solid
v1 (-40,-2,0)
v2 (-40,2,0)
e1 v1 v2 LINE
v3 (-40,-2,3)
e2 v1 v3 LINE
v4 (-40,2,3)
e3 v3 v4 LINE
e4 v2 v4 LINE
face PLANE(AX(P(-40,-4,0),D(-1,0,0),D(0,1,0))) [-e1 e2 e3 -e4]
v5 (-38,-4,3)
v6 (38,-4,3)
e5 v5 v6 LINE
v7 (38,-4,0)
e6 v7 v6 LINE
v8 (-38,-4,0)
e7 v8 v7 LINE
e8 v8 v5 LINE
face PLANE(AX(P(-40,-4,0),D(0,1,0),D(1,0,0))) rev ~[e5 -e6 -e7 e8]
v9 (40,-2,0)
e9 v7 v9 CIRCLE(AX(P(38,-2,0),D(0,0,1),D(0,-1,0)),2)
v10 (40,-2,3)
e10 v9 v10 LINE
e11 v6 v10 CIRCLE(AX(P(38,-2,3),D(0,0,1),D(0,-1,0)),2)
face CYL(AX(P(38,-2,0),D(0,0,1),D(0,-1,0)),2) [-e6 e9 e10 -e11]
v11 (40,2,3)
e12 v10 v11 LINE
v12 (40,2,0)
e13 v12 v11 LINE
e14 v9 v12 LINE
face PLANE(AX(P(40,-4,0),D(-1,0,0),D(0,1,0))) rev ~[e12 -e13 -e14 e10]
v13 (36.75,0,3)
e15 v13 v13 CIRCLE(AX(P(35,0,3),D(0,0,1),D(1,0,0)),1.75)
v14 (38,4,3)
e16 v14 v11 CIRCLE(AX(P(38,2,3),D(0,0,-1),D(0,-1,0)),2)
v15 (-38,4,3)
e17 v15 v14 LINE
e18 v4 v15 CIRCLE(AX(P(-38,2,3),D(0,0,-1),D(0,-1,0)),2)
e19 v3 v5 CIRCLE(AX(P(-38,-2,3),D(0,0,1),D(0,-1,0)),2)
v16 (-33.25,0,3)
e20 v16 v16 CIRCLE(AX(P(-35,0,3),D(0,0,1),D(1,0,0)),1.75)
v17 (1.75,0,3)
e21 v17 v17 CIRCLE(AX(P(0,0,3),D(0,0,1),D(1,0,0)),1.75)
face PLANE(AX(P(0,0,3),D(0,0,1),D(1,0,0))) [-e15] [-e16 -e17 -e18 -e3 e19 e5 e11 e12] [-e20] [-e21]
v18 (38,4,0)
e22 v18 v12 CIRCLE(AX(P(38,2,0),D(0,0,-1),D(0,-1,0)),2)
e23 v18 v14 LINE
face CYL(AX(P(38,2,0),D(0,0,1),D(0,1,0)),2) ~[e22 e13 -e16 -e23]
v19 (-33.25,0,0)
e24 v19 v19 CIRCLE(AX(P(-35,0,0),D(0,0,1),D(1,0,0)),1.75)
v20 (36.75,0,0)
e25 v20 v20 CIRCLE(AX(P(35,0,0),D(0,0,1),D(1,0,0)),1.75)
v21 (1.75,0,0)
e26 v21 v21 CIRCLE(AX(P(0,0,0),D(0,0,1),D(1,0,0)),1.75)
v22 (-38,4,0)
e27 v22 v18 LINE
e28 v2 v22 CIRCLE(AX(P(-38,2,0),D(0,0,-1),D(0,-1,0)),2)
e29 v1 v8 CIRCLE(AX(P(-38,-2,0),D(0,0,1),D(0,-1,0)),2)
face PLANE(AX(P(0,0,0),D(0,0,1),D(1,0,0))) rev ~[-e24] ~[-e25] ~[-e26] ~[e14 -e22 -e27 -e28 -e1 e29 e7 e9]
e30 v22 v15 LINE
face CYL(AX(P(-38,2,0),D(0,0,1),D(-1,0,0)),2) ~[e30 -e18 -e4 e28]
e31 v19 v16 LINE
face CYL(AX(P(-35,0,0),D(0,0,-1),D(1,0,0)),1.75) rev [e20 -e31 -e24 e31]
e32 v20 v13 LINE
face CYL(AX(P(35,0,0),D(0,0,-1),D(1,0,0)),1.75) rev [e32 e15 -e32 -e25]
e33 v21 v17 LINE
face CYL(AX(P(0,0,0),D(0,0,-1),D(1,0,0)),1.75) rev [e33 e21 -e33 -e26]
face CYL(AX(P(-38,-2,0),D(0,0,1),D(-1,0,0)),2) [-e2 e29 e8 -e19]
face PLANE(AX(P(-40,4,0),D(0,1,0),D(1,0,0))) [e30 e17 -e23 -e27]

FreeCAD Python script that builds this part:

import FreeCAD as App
import Part
import Sketcher
from FreeCAD import Vector


def edges_at(feature, points):
    """Names of the edges that pass closest to the given points."""
    edges = feature.Shape.Edges
    near = lambda p: min(range(len(edges)), key=lambda i: edges[i].distToShape(Part.Vertex(*p))[0])
    return sorted({f"Edge{near(p) + 1}" for p in points})

doc = App.newDocument("Part")
body = doc.addObject("PartDesign::Body", "Body")

# Sketch on XY plane
sketch1 = doc.addObject("Sketcher::SketchObject", "Sketch")
body.addObject(sketch1)
sketch1.AttachmentSupport = (doc.XY_Plane, [""])
sketch1.MapMode = "FlatFace"
sketch1.addGeometry(Part.LineSegment(Vector(-40, 4, 0), Vector(-40, -4, 0)), False)
sketch1.addGeometry(Part.LineSegment(Vector(-40, -4, 0), Vector(40, -4, 0)), False)
sketch1.addGeometry(Part.LineSegment(Vector(40, -4, 0), Vector(40, 4, 0)), False)
sketch1.addGeometry(Part.LineSegment(Vector(40, 4, 0), Vector(-40, 4, 0)), False)
sketch1.addGeometry(Part.Circle(Vector(-35, 0, 0), Vector(0, 0, 1), 1.8), False)
sketch1.addGeometry(Part.Circle(Vector(0, 0, 0), Vector(0, 0, 1), 1.8), False)
sketch1.addGeometry(Part.Circle(Vector(35, 0, 0), Vector(0, 0, 1), 1.8), False)
sketch1.addConstraint(Sketcher.Constraint("Coincident", 0, 2, 1, 1))
sketch1.addConstraint(Sketcher.Constraint("Coincident", 1, 2, 2, 1))
sketch1.addConstraint(Sketcher.Constraint("Coincident", 2, 2, 3, 1))
sketch1.addConstraint(Sketcher.Constraint("Coincident", 3, 2, 0, 1))
sketch1.addConstraint(Sketcher.Constraint("Vertical", 0))
sketch1.addConstraint(Sketcher.Constraint("Horizontal", 1))
sketch1.addConstraint(Sketcher.Constraint("Vertical", 2))
sketch1.addConstraint(Sketcher.Constraint("Horizontal", 3))
sketch1.addConstraint(Sketcher.Constraint("Coincident", 5, 3, -1, 1))
sketch1.addConstraint(Sketcher.Constraint("Equal", 4, 5))
sketch1.addConstraint(Sketcher.Constraint("Equal", 5, 6))
sketch1.addConstraint(Sketcher.Constraint("Symmetric", 4, 3, 6, 3, -1, 1))
sketch1.addConstraint(Sketcher.Constraint("Symmetric", 0, 2, 2, 2, -1, 1))
sketch1.addConstraint(Sketcher.Constraint("PointOnObject", 4, 3, -1))
sketch1.addConstraint(Sketcher.Constraint("Diameter", 4, 3.5))
sketch1.addConstraint(Sketcher.Constraint("DistanceX", 1, 1, 1, 2, 80.0))
sketch1.addConstraint(Sketcher.Constraint("DistanceY", 0, 2, 0, 1, 8.0))
sketch1.addConstraint(Sketcher.Constraint("DistanceX", 4, 3, -1, 1, 35.0))
pad1 = doc.addObject("PartDesign::Pad", "Pad")
body.addObject(pad1)
pad1.Profile = sketch1
pad1.Length = 3
doc.recompute()

fillet = doc.addObject("PartDesign::Fillet", "Fillet")
body.addObject(fillet)
fillet.Base = (pad1, edges_at(pad1, [
    (-40, -4, 1.5),
    (40, -4, 1.5),
    (40, 4, 1.5),
    (-40, 4, 1.5),
]))
fillet.Radius = 2

doc.recompute()
